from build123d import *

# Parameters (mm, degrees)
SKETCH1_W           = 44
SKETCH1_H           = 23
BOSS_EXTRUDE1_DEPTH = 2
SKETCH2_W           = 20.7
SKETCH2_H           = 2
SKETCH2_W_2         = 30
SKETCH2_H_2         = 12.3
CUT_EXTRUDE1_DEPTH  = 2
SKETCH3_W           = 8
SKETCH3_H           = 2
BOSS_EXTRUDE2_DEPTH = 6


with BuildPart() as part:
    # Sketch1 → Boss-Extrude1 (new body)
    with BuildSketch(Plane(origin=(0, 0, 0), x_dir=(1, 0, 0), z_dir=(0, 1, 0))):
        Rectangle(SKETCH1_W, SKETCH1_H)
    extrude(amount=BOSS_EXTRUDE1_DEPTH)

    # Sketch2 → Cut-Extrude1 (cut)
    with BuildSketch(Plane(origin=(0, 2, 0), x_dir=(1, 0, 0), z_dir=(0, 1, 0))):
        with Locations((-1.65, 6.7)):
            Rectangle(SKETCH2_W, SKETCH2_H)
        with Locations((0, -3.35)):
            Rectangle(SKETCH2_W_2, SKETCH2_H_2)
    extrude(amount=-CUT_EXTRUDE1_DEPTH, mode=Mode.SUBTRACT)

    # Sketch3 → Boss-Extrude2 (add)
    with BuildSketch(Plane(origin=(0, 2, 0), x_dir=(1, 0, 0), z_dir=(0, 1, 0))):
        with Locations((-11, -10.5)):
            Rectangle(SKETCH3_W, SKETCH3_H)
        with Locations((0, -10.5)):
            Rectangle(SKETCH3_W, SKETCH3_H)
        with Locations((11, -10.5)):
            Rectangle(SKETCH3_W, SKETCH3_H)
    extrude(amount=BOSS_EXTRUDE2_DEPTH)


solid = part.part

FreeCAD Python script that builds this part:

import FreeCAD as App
import Part
import Sketcher

V = App.Vector
Q = App.Units.Quantity

doc = App.newDocument("Part")
body = doc.addObject("PartDesign::Body", "Body")

# Sketch on XZ plane
sketch1 = doc.addObject("Sketcher::SketchObject", "Sketch")
body.addObject(sketch1)
sketch1.AttachmentSupport = (doc.XZ_Plane, [""])
sketch1.MapMode = "FlatFace"
sketch1.addGeometry(Part.LineSegment(V(-22, -12, 0), V(-22, 12, 0)), False)
sketch1.addGeometry(Part.LineSegment(V(-22, 12, 0), V(22, 12, 0)), False)
sketch1.addGeometry(Part.LineSegment(V(22, 12, 0), V(22, -12, 0)), False)
sketch1.addGeometry(Part.LineSegment(V(22, -12, 0), V(-22, -12, 0)), False)
sketch1.addConstraint(Sketcher.Constraint("Coincident", 0, 2, 1, 1))
sketch1.addConstraint(Sketcher.Constraint("Coincident", 1, 2, 2, 1))
sketch1.addConstraint(Sketcher.Constraint("Coincident", 2, 2, 3, 1))
sketch1.addConstraint(Sketcher.Constraint("Coincident", 3, 2, 0, 1))
sketch1.addConstraint(Sketcher.Constraint("Vertical", 0))
sketch1.addConstraint(Sketcher.Constraint("Horizontal", 1))
sketch1.addConstraint(Sketcher.Constraint("Vertical", 2))
sketch1.addConstraint(Sketcher.Constraint("Horizontal", 3))
sketch1.addConstraint(Sketcher.Constraint("Symmetric", 0, 2, 2, 2, -1, 1))
sketch1.addConstraint(Sketcher.Constraint("DistanceX", 1, 1, 1, 2, Q("44 mm")))
sketch1.addConstraint(Sketcher.Constraint("DistanceY", 0, 1, 0, 2, Q("23 mm")))
pad1 = doc.addObject("PartDesign::Pad", "Pad")
body.addObject(pad1)
pad1.Profile = sketch1
pad1.Length = 2
pad1.Reversed = True

# Sketch on XZ plane
sketch2 = doc.addObject("Sketcher::SketchObject", "Sketch001")
body.addObject(sketch2)
sketch2.AttachmentSupport = (doc.XZ_Plane, [""])
sketch2.MapMode = "FlatFace"
sketch2.AttachmentOffset = App.Placement(V(0, 0, -2), App.Rotation())
sketch2.addGeometry(Part.LineSegment(V(-12, -7.7, 0), V(-12, -5.7, 0)), False)
sketch2.addGeometry(Part.LineSegment(V(-12, -5.7, 0), V(8.7, -5.7, 0)), False)
sketch2.addGeometry(Part.LineSegment(V(8.7, -5.7, 0), V(8.7, -7.7, 0)), False)
sketch2.addGeometry(Part.LineSegment(V(8.7, -7.7, 0), V(-12, -7.7, 0)), False)
sketch2.addGeometry(Part.LineSegment(V(-15, -2.8, 0), V(-15, 9.5, 0)), False)
sketch2.addGeometry(Part.LineSegment(V(-15, 9.5, 0), V(15, 9.5, 0)), False)
sketch2.addGeometry(Part.LineSegment(V(15, 9.5, 0), V(15, -2.8, 0)), False)
sketch2.addGeometry(Part.LineSegment(V(15, -2.8, 0), V(-15, -2.8, 0)), False)
sketch2.addConstraint(Sketcher.Constraint("Coincident", 0, 2, 1, 1))
sketch2.addConstraint(Sketcher.Constraint("Coincident", 1, 2, 2, 1))
sketch2.addConstraint(Sketcher.Constraint("Coincident", 2, 2, 3, 1))
sketch2.addConstraint(Sketcher.Constraint("Coincident", 3, 2, 0, 1))
sketch2.addConstraint(Sketcher.Constraint("Coincident", 4, 2, 5, 1))
sketch2.addConstraint(Sketcher.Constraint("Coincident", 5, 2, 6, 1))
sketch2.addConstraint(Sketcher.Constraint("Coincident", 6, 2, 7, 1))
sketch2.addConstraint(Sketcher.Constraint("Coincident", 7, 2, 4, 1))
sketch2.addConstraint(Sketcher.Constraint("Vertical", 0))
sketch2.addConstraint(Sketcher.Constraint("Horizontal", 1))
sketch2.addConstraint(Sketcher.Constraint("Vertical", 2))
sketch2.addConstraint(Sketcher.Constraint("Horizontal", 3))
sketch2.addConstraint(Sketcher.Constraint("Vertical", 4))
sketch2.addConstraint(Sketcher.Constraint("Horizontal", 5))
sketch2.addConstraint(Sketcher.Constraint("Vertical", 6))
sketch2.addConstraint(Sketcher.Constraint("Horizontal", 7))
sketch2.addConstraint(Sketcher.Constraint("DistanceX", 5, 1, 5, 2, Q("30 mm")))
sketch2.addConstraint(Sketcher.Constraint("DistanceY", 0, 1, 0, 2, Q("2 mm")))
sketch2.addConstraint(Sketcher.Constraint("DistanceX", 1, 1, 1, 2, Q("20.7 mm")))
sketch2.addConstraint(Sketcher.Constraint("DistanceY", 4, 1, 4, 2, Q("12.3 mm")))
sketch2.addConstraint(Sketcher.Constraint("DistanceX", 0, 2, -1, 1, Q("12 mm")))
sketch2.addConstraint(Sketcher.Constraint("DistanceX", 4, 2, -1, 1, Q("15 mm")))
sketch2.addConstraint(Sketcher.Constraint("DistanceY", 0, 2, -1, 1, Q("5.7 mm")))
sketch2.addConstraint(Sketcher.Constraint("DistanceY", -1, 1, 4, 2, Q("9.5 mm")))
pocket1 = doc.addObject("PartDesign::Pocket", "Pocket")
body.addObject(pocket1)
pocket1.Profile = sketch2
pocket1.Length = 2
pocket1.Reversed = True

# Sketch on XZ plane
sketch3 = doc.addObject("Sketcher::SketchObject", "Sketch002")
body.addObject(sketch3)
sketch3.AttachmentSupport = (doc.XZ_Plane, [""])
sketch3.MapMode = "FlatFace"
sketch3.AttachmentOffset = App.Placement(V(0, 0, -2), App.Rotation())
sketch3.addGeometry(Part.LineSegment(V(-15, 9.5, 0), V(-15, 11.5, 0)), False)
sketch3.addGeometry(Part.LineSegment(V(-15, 11.5, 0), V(-7, 11.5, 0)), False)
sketch3.addGeometry(Part.LineSegment(V(-7, 11.5, 0), V(-7, 9.5, 0)), False)
sketch3.addGeometry(Part.LineSegment(V(-7, 9.5, 0), V(-15, 9.5, 0)), False)
sketch3.addGeometry(Part.LineSegment(V(-4, 9.5, 0), V(-4, 11.5, 0)), False)
sketch3.addGeometry(Part.LineSegment(V(-4, 11.5, 0), V(4, 11.5, 0)), False)
sketch3.addGeometry(Part.LineSegment(V(4, 11.5, 0), V(4, 9.5, 0)), False)
sketch3.addGeometry(Part.LineSegment(V(4, 9.5, 0), V(-4, 9.5, 0)), False)
sketch3.addGeometry(Part.LineSegment(V(7, 9.5, 0), V(7, 11.5, 0)), False)
sketch3.addGeometry(Part.LineSegment(V(7, 11.5, 0), V(15, 11.5, 0)), False)
sketch3.addGeometry(Part.LineSegment(V(15, 11.5, 0), V(15, 9.5, 0)), False)
sketch3.addGeometry(Part.LineSegment(V(15, 9.5, 0), V(7, 9.5, 0)), False)
sketch3.addConstraint(Sketcher.Constraint("Coincident", 0, 2, 1, 1))
sketch3.addConstraint(Sketcher.Constraint("Coincident", 1, 2, 2, 1))
sketch3.addConstraint(Sketcher.Constraint("Coincident", 2, 2, 3, 1))
sketch3.addConstraint(Sketcher.Constraint("Coincident", 3, 2, 0, 1))
sketch3.addConstraint(Sketcher.Constraint("Coincident", 4, 2, 5, 1))
sketch3.addConstraint(Sketcher.Constraint("Coincident", 5, 2, 6, 1))
sketch3.addConstraint(Sketcher.Constraint("Coincident", 6, 2, 7, 1))
sketch3.addConstraint(Sketcher.Constraint("Coincident", 7, 2, 4, 1))
sketch3.addConstraint(Sketcher.Constraint("Coincident", 8, 2, 9, 1))
sketch3.addConstraint(Sketcher.Constraint("Coincident", 9, 2, 10, 1))
sketch3.addConstraint(Sketcher.Constraint("Coincident", 10, 2, 11, 1))
sketch3.addConstraint(Sketcher.Constraint("Coincident", 11, 2, 8, 1))
sketch3.addConstraint(Sketcher.Constraint("Vertical", 0))
sketch3.addConstraint(Sketcher.Constraint("Horizontal", 1))
sketch3.addConstraint(Sketcher.Constraint("Vertical", 2))
sketch3.addConstraint(Sketcher.Constraint("Horizontal", 3))
sketch3.addConstraint(Sketcher.Constraint("Vertical", 4))
sketch3.addConstraint(Sketcher.Constraint("Horizontal", 5))
sketch3.addConstraint(Sketcher.Constraint("Vertical", 6))
sketch3.addConstraint(Sketcher.Constraint("Horizontal", 7))
sketch3.addConstraint(Sketcher.Constraint("Vertical", 8))
sketch3.addConstraint(Sketcher.Constraint("Horizontal", 9))
sketch3.addConstraint(Sketcher.Constraint("Vertical", 10))
sketch3.addConstraint(Sketcher.Constraint("Horizontal", 11))
sketch3.addConstraint(Sketcher.Constraint("Symmetric", 1, 2, 8, 2, -2))
sketch3.addConstraint(Sketcher.Constraint("Symmetric", 3, 2, 10, 2, -2))
sketch3.addConstraint(Sketcher.Constraint("Horizontal", 1, 2, 4, 2))
sketch3.addConstraint(Sketcher.Constraint("Horizontal", 3, 2, 6, 2))
sketch3.addConstraint(Sketcher.Constraint("Equal", 3, 5))
sketch3.addConstraint(Sketcher.Constraint("DistanceX", 1, 1, 1, 2, Q("8 mm")))
sketch3.addConstraint(Sketcher.Constraint("DistanceY", 0, 1, 0, 2, Q("2 mm")))
sketch3.addConstraint(Sketcher.Constraint("DistanceX", 0, 2, -1, 1, Q("15 mm")))
sketch3.addConstraint(Sketcher.Constraint("DistanceX", 4, 2, -1, 1, Q("4 mm")))
sketch3.addConstraint(Sketcher.Constraint("DistanceY", -1, 1, 0, 2, Q("11.5 mm")))
pad2 = doc.addObject("PartDesign::Pad", "Pad001")
body.addObject(pad2)
pad2.Profile = sketch3
pad2.Length = 6
pad2.Reversed = True

doc.recompute()
